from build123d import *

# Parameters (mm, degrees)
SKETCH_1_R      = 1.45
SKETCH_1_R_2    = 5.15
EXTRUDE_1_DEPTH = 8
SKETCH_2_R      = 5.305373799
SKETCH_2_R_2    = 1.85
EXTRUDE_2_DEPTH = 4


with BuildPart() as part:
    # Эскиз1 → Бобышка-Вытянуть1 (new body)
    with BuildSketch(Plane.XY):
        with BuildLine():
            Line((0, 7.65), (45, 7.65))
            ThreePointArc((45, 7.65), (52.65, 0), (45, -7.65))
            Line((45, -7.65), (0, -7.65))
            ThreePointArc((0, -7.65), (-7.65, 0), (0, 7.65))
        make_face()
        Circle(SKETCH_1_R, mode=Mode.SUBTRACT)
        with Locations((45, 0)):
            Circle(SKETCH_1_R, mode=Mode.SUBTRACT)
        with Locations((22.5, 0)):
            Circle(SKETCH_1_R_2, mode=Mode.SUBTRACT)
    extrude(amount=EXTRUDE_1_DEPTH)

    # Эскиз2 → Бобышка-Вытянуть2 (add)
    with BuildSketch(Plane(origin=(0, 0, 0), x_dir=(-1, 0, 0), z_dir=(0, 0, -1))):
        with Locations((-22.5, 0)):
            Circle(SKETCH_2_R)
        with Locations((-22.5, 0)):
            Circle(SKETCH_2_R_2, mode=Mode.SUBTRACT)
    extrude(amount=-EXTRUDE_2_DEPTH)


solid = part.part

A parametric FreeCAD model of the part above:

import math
import FreeCAD as App
import Part
import Sketcher
from FreeCAD import Vector

doc = App.newDocument("Part")
params = doc.addObject("Spreadsheet::Sheet", "Params")
for row, (alias, value) in enumerate([
    ("sketch1_diameter", "2.9 mm"),
    ("sketch1_diameter2", "10.3 mm"),
    ("sketch1_width", "45 mm"),
    ("sketch1_radius", "7.65 mm"),
    ("pad1_length", "8 mm"),
    ("sketch2_diameter", "3.7 mm"),
    ("pad2_length", "4 mm"),
], start=1):
    params.set(f"A{row}", alias)
    params.set(f"B{row}", "=" + value)
    params.setAlias(f"B{row}", alias)

body = doc.addObject("PartDesign::Body", "Body")

sketch1 = doc.addObject("Sketcher::SketchObject", "Sketch")
body.addObject(sketch1)
sketch1.AttachmentSupport = (doc.XY_Plane, [""])
sketch1.MapMode = "FlatFace"
sketch1.addGeometry(Part.LineSegment(Vector(45, 7.65, 0), Vector(0, 7.65, 0)), False)
sketch1.addGeometry(Part.ArcOfCircle(Part.Circle(Vector(0, 0, 0), Vector(0, 0, 1), 7.65), math.radians(90), math.radians(270)), False)
sketch1.addGeometry(Part.LineSegment(Vector(0, -7.65, 0), Vector(45, -7.65, 0)), False)
sketch1.addGeometry(Part.ArcOfCircle(Part.Circle(Vector(45, 0, 0), Vector(0, 0, 1), 7.65), math.radians(-90), math.radians(90)), False)
sketch1.addGeometry(Part.Circle(Vector(45, 0, 0), Vector(0, 0, 1), 1.45), False)
sketch1.addGeometry(Part.Circle(Vector(22.5, 0, 0), Vector(0, 0, 1), 5.15), False)
sketch1.addGeometry(Part.Circle(Vector(0, 0, 0), Vector(0, 0, 1), 1.45), False)
sketch1.addConstraint(Sketcher.Constraint("Tangent", 0, 2, 1, 1))
sketch1.addConstraint(Sketcher.Constraint("Tangent", 1, 2, 2, 1))
sketch1.addConstraint(Sketcher.Constraint("Tangent", 2, 2, 3, 1))
sketch1.addConstraint(Sketcher.Constraint("Tangent", 3, 2, 0, 1))
sketch1.addConstraint(Sketcher.Constraint("Horizontal", 0))
sketch1.addConstraint(Sketcher.Constraint("Horizontal", 2))
sketch1.addConstraint(Sketcher.Constraint("Coincident", 1, 3, -1, 1))
sketch1.addConstraint(Sketcher.Constraint("Coincident", 6, 3, -1, 1))
sketch1.addConstraint(Sketcher.Constraint("Coincident", 4, 3, 3, 3))
sketch1.addConstraint(Sketcher.Constraint("Equal", 4, 6))
sketch1.addConstraint(Sketcher.Constraint("PointOnObject", 5, 3, -1))
sketch1.addConstraint(Sketcher.Constraint("Diameter", 4, 2.9))
sketch1.addConstraint(Sketcher.Constraint("Diameter", 5, 10.3))
sketch1.addConstraint(Sketcher.Constraint("DistanceX", 0, 2, 0, 1, 45.0))
sketch1.addConstraint(Sketcher.Constraint("Radius", 1, 7.65))
sketch1.addConstraint(Sketcher.Constraint("DistanceX", -1, 1, 5, 3, 22.5))
sketch1.setExpression("Constraints[11]", "Params.sketch1_diameter")
sketch1.setExpression("Constraints[12]", "Params.sketch1_diameter2")
sketch1.setExpression("Constraints[13]", "Params.sketch1_width")
sketch1.setExpression("Constraints[14]", "Params.sketch1_radius")
pad1 = doc.addObject("PartDesign::Pad", "Pad")
body.addObject(pad1)
pad1.Profile = sketch1
pad1.setExpression("Length", "Params.pad1_length")

sketch2 = doc.addObject("Sketcher::SketchObject", "Sketch001")
body.addObject(sketch2)
sketch2.AttachmentSupport = (doc.XY_Plane, [""])
sketch2.MapMode = "FlatFace"
sketch2.addGeometry(Part.Circle(Vector(22.5, 0, 0), Vector(0, 0, 1), 5.305374), False)
sketch2.addGeometry(Part.Circle(Vector(22.5, 0, 0), Vector(0, 0, 1), 1.85), False)
sketch2.addConstraint(Sketcher.Constraint("Coincident", 1, 3, 0, 3))
sketch2.addConstraint(Sketcher.Constraint("PointOnObject", 0, 3, -1))
sketch2.addConstraint(Sketcher.Constraint("Diameter", 1, 3.7))
sketch2.addConstraint(Sketcher.Constraint("DistanceX", -1, 1, 0, 3, 22.5))
sketch2.addConstraint(Sketcher.Constraint("Diameter", 0, 10.610748))
sketch2.setExpression("Constraints[2]", "Params.sketch2_diameter")
pad2 = doc.addObject("PartDesign::Pad", "Pad001")
body.addObject(pad2)
pad2.Profile = sketch2
pad2.setExpression("Length", "Params.pad2_length")

doc.recompute()
